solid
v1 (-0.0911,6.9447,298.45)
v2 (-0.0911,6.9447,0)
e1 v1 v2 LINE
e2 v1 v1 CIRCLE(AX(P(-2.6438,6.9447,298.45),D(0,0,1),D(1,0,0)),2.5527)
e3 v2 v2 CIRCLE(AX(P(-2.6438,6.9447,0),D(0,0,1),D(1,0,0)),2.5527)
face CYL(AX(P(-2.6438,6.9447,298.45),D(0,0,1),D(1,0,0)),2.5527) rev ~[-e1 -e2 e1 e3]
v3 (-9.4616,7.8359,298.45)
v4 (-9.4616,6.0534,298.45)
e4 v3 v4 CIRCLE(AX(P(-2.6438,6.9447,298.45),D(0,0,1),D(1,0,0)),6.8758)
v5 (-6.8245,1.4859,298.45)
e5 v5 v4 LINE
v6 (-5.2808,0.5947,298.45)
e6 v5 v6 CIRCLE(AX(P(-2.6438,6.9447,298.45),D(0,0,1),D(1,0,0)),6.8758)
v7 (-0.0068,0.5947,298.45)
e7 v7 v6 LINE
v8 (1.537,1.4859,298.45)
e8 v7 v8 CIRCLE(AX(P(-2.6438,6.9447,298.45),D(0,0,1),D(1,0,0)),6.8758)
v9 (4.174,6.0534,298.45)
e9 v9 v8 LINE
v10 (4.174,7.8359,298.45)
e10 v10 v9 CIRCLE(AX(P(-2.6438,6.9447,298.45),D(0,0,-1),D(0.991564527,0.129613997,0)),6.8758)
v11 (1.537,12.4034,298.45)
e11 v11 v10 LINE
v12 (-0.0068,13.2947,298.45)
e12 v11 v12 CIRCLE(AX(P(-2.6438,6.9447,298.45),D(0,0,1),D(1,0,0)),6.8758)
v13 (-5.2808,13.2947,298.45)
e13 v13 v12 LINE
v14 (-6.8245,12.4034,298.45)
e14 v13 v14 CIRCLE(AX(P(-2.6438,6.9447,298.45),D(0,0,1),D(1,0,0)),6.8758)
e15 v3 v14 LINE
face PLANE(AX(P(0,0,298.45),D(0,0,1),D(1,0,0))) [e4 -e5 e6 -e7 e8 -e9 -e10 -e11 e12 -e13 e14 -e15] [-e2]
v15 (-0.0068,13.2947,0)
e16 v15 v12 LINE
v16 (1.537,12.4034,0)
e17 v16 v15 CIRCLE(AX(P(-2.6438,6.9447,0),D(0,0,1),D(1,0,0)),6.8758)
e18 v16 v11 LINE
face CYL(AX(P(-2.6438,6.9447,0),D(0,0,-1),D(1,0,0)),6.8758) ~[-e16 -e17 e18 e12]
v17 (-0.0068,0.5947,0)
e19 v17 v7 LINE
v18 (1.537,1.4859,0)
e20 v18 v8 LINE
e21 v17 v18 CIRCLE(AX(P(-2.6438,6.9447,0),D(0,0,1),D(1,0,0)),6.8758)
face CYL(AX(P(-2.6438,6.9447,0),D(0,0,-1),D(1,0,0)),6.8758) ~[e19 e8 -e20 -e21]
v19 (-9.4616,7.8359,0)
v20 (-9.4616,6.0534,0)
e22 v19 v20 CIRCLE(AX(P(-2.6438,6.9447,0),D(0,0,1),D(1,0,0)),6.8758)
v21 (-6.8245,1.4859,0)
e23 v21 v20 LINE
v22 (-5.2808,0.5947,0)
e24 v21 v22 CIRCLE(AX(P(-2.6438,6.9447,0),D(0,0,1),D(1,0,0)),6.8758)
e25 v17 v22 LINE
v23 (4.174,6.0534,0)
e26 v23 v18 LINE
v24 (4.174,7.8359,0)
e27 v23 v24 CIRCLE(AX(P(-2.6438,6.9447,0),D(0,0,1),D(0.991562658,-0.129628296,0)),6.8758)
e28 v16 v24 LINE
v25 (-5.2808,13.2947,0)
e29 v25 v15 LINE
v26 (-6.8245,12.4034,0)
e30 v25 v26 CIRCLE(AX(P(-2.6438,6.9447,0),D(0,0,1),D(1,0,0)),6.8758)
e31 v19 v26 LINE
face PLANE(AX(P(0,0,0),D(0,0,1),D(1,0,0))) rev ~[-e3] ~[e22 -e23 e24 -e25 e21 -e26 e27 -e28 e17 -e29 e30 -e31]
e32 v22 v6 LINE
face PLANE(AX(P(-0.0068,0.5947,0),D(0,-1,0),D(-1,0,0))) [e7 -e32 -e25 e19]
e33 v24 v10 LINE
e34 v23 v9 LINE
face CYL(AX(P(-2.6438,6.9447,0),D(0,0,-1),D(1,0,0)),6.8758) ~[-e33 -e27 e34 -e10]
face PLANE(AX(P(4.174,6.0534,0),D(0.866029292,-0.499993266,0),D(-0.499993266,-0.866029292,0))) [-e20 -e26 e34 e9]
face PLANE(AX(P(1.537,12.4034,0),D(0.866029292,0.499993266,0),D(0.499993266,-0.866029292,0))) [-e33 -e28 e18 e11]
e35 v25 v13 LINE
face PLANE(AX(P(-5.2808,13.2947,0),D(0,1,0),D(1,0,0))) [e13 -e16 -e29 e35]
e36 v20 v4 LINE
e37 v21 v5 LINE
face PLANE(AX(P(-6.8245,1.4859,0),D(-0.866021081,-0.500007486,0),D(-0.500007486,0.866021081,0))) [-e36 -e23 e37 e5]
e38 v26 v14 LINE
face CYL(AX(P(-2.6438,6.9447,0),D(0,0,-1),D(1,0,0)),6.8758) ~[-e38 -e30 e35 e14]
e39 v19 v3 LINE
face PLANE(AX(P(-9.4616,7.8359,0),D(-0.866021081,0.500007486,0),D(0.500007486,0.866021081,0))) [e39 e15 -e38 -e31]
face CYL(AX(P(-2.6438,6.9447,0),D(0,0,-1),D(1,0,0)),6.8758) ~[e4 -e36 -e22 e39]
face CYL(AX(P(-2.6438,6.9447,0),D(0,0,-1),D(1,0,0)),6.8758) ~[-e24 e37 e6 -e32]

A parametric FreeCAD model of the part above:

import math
import FreeCAD as App
import Part
import Sketcher
Q = App.Units.Quantity

doc = App.newDocument("Part")
body = doc.addObject("PartDesign::Body", "Body")

sketch1 = body.newObject("Sketcher::SketchObject", "Sketch")
sketch1.AttachmentSupport = (doc.getObject("XY_Plane"), [""])
sketch1.MapMode = "FlatFace"
sketch1.addGeometry([
    Part.ArcOfCircle(Part.Circle(App.Vector(-2.6438, 6.9447, 0), App.Vector(0, 0, 1), 6.8758), math.radians(-7.448114), math.radians(7.447287)),
    Part.LineSegment(App.Vector(4.174, 7.8359, 0), App.Vector(1.537, 12.4034, 0)),
    Part.ArcOfCircle(Part.Circle(App.Vector(-2.6438, 6.9447, 0), App.Vector(0, 0, 1), 6.8758), math.radians(52.551618), math.radians(67.448081)),
    Part.LineSegment(App.Vector(-0.0068, 13.2947, 0), App.Vector(-5.2808, 13.2947, 0)),
    Part.ArcOfCircle(Part.Circle(App.Vector(-2.6438, 6.9447, 0), App.Vector(0, 0, 1), 6.8758), math.radians(112.551919), math.radians(127.447721)),
    Part.LineSegment(App.Vector(-6.8245, 12.4034, 0), App.Vector(-9.4616, 7.8359, 0)),
    Part.ArcOfCircle(Part.Circle(App.Vector(-2.6438, 6.9447, 0), App.Vector(0, 0, 1), 6.8758), math.radians(172.552713), math.radians(187.448114)),
    Part.LineSegment(App.Vector(-9.4616, 6.0534, 0), App.Vector(-6.8245, 1.4859, 0)),
    Part.ArcOfCircle(Part.Circle(App.Vector(-2.6438, 6.9447, 0), App.Vector(0, 0, 1), 6.8758), math.radians(-127.447214), math.radians(-112.551919)),
    Part.LineSegment(App.Vector(-5.2808, 0.5947, 0), App.Vector(-0.0068, 0.5947, 0)),
    Part.ArcOfCircle(Part.Circle(App.Vector(-2.6438, 6.9447, 0), App.Vector(0, 0, 1), 6.8758), math.radians(-67.448081), math.radians(-52.552124)),
    Part.LineSegment(App.Vector(1.537, 1.4859, 0), App.Vector(4.174, 6.0534, 0)),
], False)
sketch1.addConstraint([
    Sketcher.Constraint("Coincident", 0, 2, 1, 1),
    Sketcher.Constraint("Coincident", 1, 2, 2, 1),
    Sketcher.Constraint("Coincident", 2, 2, 3, 1),
    Sketcher.Constraint("Coincident", 3, 2, 4, 1),
    Sketcher.Constraint("Coincident", 4, 2, 5, 1),
    Sketcher.Constraint("Coincident", 5, 2, 6, 1),
    Sketcher.Constraint("Coincident", 6, 2, 7, 1),
    Sketcher.Constraint("Coincident", 7, 2, 8, 1),
    Sketcher.Constraint("Coincident", 8, 2, 9, 1),
    Sketcher.Constraint("Coincident", 9, 2, 10, 1),
    Sketcher.Constraint("Coincident", 10, 2, 11, 1),
    Sketcher.Constraint("Coincident", 11, 2, 0, 1),
    Sketcher.Constraint("Horizontal", 3),
    Sketcher.Constraint("Horizontal", 9),
    Sketcher.Constraint("Coincident", 2, 3, 0, 3),
    Sketcher.Constraint("Coincident", 4, 3, 0, 3),
    Sketcher.Constraint("Coincident", 6, 3, 0, 3),
    Sketcher.Constraint("Coincident", 8, 3, 0, 3),
    Sketcher.Constraint("Coincident", 10, 3, 0, 3),
    Sketcher.Constraint("Equal", 0, 2),
    Sketcher.Constraint("Equal", 2, 4),
    Sketcher.Constraint("Equal", 4, 6),
    Sketcher.Constraint("Equal", 6, 8),
    Sketcher.Constraint("Equal", 8, 10),
    Sketcher.Constraint("Parallel", 1, 7),
    Sketcher.Constraint("Parallel", 5, 11),
    Sketcher.Constraint("Horizontal", 1, 2, 4, 2),
    Sketcher.Constraint("Horizontal", 0, 2, 5, 2),
    Sketcher.Constraint("Horizontal", 7, 2, 10, 2),
    Sketcher.Constraint("Vertical", 5, 2, 6, 2),
    Sketcher.Constraint("Vertical", 3, 2, 8, 2),
    Sketcher.Constraint("Radius", 0, Q("0.2707 in")),
    Sketcher.Constraint("Angle", 1, Q("119.9996 deg")),
    Sketcher.Constraint("DistanceY", 0, 3, 2, 2, Q("0.25 in")),
    Sketcher.Constraint("DistanceY", 10, 2, 0, 2, Q("0.25 in")),
    Sketcher.Constraint("DistanceY", -1, 1, 0, 2, Q("0.3085 in")),
    Sketcher.Constraint("DistanceX", -1, 1, 1, 2, Q("0.0605 in")),
])
pad1 = body.newObject("PartDesign::Pad", "Pad")
pad1.Profile = sketch1
pad1.Length = Q("11.75 in")

sketch2 = body.newObject("Sketcher::SketchObject", "Sketch001")
sketch2.AttachmentSupport = (doc.getObject("XY_Plane"), [""])
sketch2.MapMode = "FlatFace"
sketch2.AttachmentOffset = App.Placement(App.Vector(0, 0, 11.75 * 25.4), App.Rotation())
sketch2.addGeometry(Part.Circle(App.Vector(-2.6438, 6.9447, 0), App.Vector(0, 0, 1), 2.5527), False)
sketch2.addConstraint([
    Sketcher.Constraint("Diameter", 0, Q("0.201 in")),
    Sketcher.Constraint("DistanceX", 0, 3, -1, 1, 2.6438),
    Sketcher.Constraint("DistanceY", -1, 1, 0, 3, 6.9447),
])
pocket1 = body.newObject("PartDesign::Pocket", "Pocket")
pocket1.Profile = sketch2
pocket1.Length = Q("11.75 in")

doc.recompute()
